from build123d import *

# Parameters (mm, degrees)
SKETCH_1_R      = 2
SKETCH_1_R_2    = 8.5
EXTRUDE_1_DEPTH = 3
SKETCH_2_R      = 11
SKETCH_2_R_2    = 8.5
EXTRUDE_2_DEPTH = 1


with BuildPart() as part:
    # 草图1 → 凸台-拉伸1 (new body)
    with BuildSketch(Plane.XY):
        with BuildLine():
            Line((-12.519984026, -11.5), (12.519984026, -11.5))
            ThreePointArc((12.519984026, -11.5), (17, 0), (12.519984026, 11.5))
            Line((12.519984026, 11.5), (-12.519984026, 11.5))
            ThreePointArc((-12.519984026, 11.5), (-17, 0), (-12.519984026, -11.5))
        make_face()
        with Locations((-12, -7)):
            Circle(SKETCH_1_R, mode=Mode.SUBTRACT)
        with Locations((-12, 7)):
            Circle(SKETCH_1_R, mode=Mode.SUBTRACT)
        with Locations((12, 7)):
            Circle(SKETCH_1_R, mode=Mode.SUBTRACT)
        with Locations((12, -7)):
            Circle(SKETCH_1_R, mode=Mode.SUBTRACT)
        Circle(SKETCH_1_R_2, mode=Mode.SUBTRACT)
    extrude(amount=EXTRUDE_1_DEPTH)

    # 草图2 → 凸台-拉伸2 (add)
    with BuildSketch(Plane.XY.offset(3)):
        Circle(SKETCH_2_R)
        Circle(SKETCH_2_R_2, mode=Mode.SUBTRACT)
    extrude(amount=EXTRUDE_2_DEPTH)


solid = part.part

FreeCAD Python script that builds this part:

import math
import FreeCAD as App
import Part
import Sketcher

V = App.Vector
Q = App.Units.Quantity

doc = App.newDocument("Part")
body = doc.addObject("PartDesign::Body", "Body")

sketch1 = body.newObject("Sketcher::SketchObject", "Sketch")
sketch1.AttachmentSupport = (doc.getObject("XY_Plane"), [""])
sketch1.MapMode = "FlatFace"
sketch1.addGeometry([
    Part.LineSegment(V(-12.5, -11.5, 0), V(12.5, -11.5, 0)),
    Part.ArcOfCircle(Part.Circle(V(0, 0, 0), V(0, 0, 1), 17), math.radians(-43), math.radians(43)),
    Part.LineSegment(V(12.5, 11.5, 0), V(-12.5, 11.5, 0)),
    Part.ArcOfCircle(Part.Circle(V(0, 0, 0), V(0, 0, 1), 17), math.radians(137), math.radians(223)),
    Part.Circle(V(-12, -7, 0), V(0, 0, 1), 2),
    Part.Circle(V(12, -7, 0), V(0, 0, 1), 2),
    Part.Circle(V(-12, 7, 0), V(0, 0, 1), 2),
    Part.Circle(V(0, 0, 0), V(0, 0, 1), 8.5),
    Part.Circle(V(12, 7, 0), V(0, 0, 1), 2),
], False)
sketch1.addConstraint([
    Sketcher.Constraint("Coincident", 0, 2, 1, 1),
    Sketcher.Constraint("Coincident", 1, 2, 2, 1),
    Sketcher.Constraint("Coincident", 2, 2, 3, 1),
    Sketcher.Constraint("Coincident", 3, 2, 0, 1),
    Sketcher.Constraint("Horizontal", 0),
    Sketcher.Constraint("Horizontal", 2),
    Sketcher.Constraint("Coincident", 1, 3, -1, 1),
    Sketcher.Constraint("Coincident", 3, 3, -1, 1),
    Sketcher.Constraint("Coincident", 7, 3, -1, 1),
    Sketcher.Constraint("Equal", 1, 3),
    Sketcher.Constraint("Equal", 4, 5),
    Sketcher.Constraint("Equal", 5, 6),
    Sketcher.Constraint("Equal", 6, 8),
    Sketcher.Constraint("Symmetric", 5, 3, 6, 3, -1, 1),
    Sketcher.Constraint("Symmetric", 4, 3, 8, 3, -1, 1),
    Sketcher.Constraint("Symmetric", 4, 3, 5, 3, -2),
    Sketcher.Constraint("Vertical", 0, 2, 1, 2),
    Sketcher.Constraint("Diameter", 4, Q("4 mm")),
    Sketcher.Constraint("Diameter", 7, Q("17 mm")),
    Sketcher.Constraint("Radius", 1, Q("17 mm")),
    Sketcher.Constraint("DistanceX", 4, 3, -1, 1, Q("12 mm")),
    Sketcher.Constraint("DistanceY", 4, 3, -1, 1, Q("7 mm")),
    Sketcher.Constraint("DistanceY", 0, 2, -1, 1, Q("11.5 mm")),
])
pad1 = body.newObject("PartDesign::Pad", "Pad")
pad1.Profile = sketch1
pad1.Length = 3

sketch2 = body.newObject("Sketcher::SketchObject", "Sketch001")
sketch2.AttachmentSupport = (doc.getObject("XY_Plane"), [""])
sketch2.MapMode = "FlatFace"
sketch2.AttachmentOffset = App.Placement(V(0, 0, 3), App.Rotation())
sketch2.addGeometry([
    Part.Circle(V(0, 0, 0), V(0, 0, 1), 11),
    Part.Circle(V(0, 0, 0), V(0, 0, 1), 8),
], False)
sketch2.addConstraint([
    Sketcher.Constraint("Coincident", 0, 3, -1, 1),
    Sketcher.Constraint("Coincident", 1, 3, -1, 1),
    Sketcher.Constraint("Diameter", 0, Q("22 mm")),
    Sketcher.Constraint("Diameter", 1, Q("17 mm")),
])
pad2 = body.newObject("PartDesign::Pad", "Pad001")
pad2.Profile = sketch2
pad2.Length = 1

doc.recompute()
